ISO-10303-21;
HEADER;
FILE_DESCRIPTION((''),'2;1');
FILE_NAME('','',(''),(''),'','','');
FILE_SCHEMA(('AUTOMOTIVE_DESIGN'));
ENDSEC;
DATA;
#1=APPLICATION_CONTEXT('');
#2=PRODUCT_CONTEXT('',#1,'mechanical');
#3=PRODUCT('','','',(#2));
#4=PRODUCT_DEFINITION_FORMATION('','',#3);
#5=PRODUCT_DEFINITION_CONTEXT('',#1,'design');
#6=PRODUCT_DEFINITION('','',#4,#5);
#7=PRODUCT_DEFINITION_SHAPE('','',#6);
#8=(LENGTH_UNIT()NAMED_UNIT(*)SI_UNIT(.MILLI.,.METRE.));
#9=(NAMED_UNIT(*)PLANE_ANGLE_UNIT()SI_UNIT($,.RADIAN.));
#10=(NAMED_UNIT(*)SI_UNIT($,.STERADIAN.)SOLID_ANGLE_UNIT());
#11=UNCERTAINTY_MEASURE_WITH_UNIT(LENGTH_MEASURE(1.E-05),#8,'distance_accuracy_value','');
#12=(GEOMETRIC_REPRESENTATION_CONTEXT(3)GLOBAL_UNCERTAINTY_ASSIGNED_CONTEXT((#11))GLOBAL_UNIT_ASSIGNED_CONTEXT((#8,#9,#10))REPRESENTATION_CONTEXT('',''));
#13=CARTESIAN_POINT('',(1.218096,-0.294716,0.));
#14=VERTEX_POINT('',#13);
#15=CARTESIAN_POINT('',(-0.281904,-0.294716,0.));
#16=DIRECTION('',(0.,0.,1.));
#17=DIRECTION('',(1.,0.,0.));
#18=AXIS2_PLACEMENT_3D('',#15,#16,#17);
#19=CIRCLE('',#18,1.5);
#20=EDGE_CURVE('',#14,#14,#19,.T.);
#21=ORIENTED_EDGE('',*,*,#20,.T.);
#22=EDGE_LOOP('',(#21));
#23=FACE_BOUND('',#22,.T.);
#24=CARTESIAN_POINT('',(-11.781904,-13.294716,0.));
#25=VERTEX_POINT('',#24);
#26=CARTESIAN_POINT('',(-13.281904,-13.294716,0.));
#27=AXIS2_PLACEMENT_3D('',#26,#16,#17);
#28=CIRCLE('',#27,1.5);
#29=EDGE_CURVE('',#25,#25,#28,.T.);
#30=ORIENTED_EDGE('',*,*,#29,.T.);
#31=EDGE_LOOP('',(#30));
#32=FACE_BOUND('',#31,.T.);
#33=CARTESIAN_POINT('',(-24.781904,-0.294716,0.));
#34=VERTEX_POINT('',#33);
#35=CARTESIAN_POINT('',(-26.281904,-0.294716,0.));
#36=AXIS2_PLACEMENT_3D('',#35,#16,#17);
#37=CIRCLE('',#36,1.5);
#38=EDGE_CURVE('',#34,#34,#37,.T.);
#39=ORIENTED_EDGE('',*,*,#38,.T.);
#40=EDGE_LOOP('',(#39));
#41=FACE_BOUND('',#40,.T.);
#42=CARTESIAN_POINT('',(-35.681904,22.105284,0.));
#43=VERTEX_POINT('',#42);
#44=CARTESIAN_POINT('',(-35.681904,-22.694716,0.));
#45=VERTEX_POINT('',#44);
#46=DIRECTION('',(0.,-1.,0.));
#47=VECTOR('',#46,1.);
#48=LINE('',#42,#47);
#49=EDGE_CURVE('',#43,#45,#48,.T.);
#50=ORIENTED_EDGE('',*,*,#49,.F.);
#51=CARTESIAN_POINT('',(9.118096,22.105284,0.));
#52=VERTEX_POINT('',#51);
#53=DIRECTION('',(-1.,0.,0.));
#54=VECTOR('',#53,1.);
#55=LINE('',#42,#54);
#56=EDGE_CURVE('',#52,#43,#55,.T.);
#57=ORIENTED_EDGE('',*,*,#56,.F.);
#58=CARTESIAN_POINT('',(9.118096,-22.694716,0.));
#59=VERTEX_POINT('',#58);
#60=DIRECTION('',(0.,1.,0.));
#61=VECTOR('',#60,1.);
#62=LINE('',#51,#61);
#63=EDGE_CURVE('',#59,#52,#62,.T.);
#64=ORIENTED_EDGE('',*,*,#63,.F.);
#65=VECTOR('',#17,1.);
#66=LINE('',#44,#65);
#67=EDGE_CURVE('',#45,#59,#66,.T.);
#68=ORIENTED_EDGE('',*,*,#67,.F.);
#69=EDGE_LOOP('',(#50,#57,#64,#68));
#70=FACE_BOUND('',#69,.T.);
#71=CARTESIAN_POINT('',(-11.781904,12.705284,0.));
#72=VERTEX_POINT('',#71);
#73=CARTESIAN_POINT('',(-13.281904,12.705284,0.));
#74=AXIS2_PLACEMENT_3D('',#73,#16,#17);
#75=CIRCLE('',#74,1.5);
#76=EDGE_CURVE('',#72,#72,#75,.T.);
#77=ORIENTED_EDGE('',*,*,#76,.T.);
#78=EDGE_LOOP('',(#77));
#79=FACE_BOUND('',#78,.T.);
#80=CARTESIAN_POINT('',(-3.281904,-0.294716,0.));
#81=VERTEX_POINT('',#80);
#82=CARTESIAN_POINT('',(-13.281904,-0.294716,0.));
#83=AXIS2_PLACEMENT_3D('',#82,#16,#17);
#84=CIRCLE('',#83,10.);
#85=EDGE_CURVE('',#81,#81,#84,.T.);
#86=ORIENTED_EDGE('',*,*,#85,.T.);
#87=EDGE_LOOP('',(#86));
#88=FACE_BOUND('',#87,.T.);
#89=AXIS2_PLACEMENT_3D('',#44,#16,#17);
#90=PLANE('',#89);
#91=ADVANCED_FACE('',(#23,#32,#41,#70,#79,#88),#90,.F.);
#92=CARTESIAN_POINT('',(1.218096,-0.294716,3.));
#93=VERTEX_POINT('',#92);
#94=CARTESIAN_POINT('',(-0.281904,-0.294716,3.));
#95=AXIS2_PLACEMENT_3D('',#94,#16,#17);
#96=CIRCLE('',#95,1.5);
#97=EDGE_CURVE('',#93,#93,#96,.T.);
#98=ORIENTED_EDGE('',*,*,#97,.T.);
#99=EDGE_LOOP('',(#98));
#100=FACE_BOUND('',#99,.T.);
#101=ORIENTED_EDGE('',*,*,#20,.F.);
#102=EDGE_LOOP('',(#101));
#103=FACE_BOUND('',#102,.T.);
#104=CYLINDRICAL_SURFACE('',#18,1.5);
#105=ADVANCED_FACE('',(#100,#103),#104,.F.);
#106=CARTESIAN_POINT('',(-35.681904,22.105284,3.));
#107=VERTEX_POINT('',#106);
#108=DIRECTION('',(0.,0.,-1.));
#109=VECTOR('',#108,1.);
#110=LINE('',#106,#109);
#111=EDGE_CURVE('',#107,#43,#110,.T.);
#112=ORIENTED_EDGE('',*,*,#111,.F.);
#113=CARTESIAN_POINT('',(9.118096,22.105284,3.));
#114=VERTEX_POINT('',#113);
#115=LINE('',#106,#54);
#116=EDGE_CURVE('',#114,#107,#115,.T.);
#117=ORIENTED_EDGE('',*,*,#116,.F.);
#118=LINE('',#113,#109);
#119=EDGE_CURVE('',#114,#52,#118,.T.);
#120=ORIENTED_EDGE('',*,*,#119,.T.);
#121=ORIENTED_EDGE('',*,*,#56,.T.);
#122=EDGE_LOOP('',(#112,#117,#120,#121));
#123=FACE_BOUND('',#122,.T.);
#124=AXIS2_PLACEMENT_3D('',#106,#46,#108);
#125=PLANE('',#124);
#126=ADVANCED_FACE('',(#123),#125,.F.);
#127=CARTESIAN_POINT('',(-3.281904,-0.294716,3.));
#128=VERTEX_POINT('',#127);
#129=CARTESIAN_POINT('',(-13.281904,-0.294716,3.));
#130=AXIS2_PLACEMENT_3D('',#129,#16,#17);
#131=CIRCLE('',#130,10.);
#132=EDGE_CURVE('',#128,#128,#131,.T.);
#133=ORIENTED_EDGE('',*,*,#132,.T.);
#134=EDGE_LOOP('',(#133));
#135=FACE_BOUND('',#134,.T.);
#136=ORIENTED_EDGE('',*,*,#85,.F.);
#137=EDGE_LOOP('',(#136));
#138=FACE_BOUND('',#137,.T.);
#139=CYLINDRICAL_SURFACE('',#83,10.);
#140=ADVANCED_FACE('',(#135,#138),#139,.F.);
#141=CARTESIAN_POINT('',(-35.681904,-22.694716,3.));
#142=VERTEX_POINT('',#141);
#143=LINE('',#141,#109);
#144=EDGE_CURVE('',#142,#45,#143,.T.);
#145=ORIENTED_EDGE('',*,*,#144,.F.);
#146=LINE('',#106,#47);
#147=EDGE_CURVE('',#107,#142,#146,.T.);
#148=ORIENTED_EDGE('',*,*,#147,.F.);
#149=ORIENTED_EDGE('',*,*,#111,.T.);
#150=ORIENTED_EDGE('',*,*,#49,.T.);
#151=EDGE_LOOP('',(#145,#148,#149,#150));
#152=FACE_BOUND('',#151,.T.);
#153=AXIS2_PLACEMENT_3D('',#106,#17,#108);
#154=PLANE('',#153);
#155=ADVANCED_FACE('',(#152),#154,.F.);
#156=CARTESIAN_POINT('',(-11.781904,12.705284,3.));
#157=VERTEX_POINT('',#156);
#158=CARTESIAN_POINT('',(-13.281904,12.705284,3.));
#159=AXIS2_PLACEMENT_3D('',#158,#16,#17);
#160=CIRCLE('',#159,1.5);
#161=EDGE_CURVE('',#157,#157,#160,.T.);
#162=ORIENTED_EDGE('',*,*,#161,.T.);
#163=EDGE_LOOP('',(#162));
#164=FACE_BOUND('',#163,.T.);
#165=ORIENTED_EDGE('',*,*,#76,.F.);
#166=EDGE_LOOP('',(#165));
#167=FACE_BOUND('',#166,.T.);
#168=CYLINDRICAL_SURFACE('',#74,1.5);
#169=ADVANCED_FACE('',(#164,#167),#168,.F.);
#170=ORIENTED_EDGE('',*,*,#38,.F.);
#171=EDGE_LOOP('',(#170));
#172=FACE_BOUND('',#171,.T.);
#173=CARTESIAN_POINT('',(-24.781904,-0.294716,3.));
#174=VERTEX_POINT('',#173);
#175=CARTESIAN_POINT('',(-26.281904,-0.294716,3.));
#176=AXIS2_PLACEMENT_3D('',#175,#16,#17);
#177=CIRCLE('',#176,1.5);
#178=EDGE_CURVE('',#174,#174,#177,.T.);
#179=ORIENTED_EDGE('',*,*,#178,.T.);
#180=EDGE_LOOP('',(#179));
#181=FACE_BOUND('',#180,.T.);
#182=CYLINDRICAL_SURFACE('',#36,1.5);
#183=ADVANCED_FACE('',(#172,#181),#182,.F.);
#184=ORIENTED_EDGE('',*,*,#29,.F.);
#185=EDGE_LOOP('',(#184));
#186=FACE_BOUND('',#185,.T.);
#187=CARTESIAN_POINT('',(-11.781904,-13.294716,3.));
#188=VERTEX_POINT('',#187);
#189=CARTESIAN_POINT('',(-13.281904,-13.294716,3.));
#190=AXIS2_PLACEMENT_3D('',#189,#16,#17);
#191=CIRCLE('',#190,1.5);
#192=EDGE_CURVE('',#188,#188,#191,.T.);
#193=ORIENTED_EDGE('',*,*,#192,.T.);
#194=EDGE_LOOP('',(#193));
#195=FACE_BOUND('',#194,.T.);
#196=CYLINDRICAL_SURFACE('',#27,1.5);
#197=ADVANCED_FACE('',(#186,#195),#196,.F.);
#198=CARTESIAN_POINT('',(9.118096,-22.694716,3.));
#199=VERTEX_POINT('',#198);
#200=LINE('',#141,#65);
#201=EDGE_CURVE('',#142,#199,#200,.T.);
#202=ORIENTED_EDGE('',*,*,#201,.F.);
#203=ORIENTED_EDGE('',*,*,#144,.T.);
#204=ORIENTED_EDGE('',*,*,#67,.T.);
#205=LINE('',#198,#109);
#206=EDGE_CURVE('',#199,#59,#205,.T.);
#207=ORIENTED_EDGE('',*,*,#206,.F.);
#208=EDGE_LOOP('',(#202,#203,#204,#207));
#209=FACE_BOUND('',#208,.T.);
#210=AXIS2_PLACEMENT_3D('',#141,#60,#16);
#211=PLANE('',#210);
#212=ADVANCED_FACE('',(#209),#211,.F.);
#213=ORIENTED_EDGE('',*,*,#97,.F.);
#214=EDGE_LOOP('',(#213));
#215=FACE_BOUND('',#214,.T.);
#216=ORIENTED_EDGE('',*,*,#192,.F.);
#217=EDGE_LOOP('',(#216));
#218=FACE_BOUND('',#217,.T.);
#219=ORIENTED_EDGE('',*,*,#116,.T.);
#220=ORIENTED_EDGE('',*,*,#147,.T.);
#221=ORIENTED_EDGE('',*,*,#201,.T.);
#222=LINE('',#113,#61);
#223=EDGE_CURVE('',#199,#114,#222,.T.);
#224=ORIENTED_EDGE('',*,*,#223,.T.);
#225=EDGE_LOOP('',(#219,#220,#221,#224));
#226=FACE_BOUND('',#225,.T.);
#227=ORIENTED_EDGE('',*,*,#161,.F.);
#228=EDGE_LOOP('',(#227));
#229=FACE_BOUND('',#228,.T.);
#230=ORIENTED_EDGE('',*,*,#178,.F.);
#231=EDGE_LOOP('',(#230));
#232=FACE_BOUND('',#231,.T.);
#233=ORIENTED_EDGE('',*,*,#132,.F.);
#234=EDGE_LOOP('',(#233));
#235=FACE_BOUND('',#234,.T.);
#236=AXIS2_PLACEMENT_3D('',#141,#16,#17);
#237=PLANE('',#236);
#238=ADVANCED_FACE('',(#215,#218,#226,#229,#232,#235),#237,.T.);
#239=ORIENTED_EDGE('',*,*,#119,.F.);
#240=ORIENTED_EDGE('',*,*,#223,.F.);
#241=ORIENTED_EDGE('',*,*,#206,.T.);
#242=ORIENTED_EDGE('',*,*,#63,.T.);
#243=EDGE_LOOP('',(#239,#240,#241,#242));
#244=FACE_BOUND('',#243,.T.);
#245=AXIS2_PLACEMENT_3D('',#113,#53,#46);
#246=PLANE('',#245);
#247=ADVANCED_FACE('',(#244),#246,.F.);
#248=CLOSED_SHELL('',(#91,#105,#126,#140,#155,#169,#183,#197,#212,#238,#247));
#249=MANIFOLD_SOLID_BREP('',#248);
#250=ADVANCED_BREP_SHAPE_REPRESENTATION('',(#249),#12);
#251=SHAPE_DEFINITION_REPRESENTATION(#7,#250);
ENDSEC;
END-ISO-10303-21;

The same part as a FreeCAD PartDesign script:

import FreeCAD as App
import Part
import Sketcher


def add_polygon(sketch, points):
    """Adds a closed chain of lines whose ends are joined by coincident constraints."""
    first, n = sketch.GeometryCount, len(points)
    for a, b in zip(points, points[1:] + points[:1]):
        sketch.addGeometry(Part.LineSegment(App.Vector(*a, 0), App.Vector(*b, 0)), False)
    for i in range(n):
        sketch.addConstraint(Sketcher.Constraint("Coincident", first + i, 2, first + (i + 1) % n, 1))

doc = App.newDocument("Part")
body = doc.addObject("PartDesign::Body", "Body")

# Sketch on XY plane
sketch1 = body.newObject("Sketcher::SketchObject", "Sketch")
sketch1.AttachmentSupport = (doc.getObject("XY_Plane"), [""])
sketch1.MapMode = "FlatFace"
add_polygon(sketch1, [(-36, 22), (-36, -23), (9, -23), (9, 22)])  # lines 0-3
sketch1.addConstraint([
    Sketcher.Constraint("Vertical", 0),
    Sketcher.Constraint("Horizontal", 1),
    Sketcher.Constraint("Vertical", 2),
    Sketcher.Constraint("Horizontal", 3),
    Sketcher.Constraint("Equal", 3, 0),
    Sketcher.Constraint("DistanceX", 1, 1, 1, 2, 44.8),
    Sketcher.Constraint("DistanceX", 0, 2, -1, 1, 35.681904),
    Sketcher.Constraint("DistanceY", 0, 2, -1, 1, 22.694716),
])
pad1 = body.newObject("PartDesign::Pad", "Pad")
pad1.Profile = sketch1
pad1.Length = 3

# Sketch on XY plane
sketch2 = body.newObject("Sketcher::SketchObject", "Sketch001")
sketch2.AttachmentSupport = (doc.getObject("XY_Plane"), [""])
sketch2.MapMode = "FlatFace"
sketch2.AttachmentOffset = App.Placement(App.Vector(0, 0, 3), App.Rotation())
sketch2.addGeometry([
    Part.Circle(App.Vector(-13.3, 12.7, 0), App.Vector(0, 0, 1), 1.5),  # 0
    Part.Circle(App.Vector(-0.3, -0.3, 0), App.Vector(0, 0, 1), 1.5),  # 1
    Part.Circle(App.Vector(-13.3, -13.3, 0), App.Vector(0, 0, 1), 1.5),  # 2
    Part.Circle(App.Vector(-26.3, -0.3, 0), App.Vector(0, 0, 1), 1.5),  # 3
    Part.Circle(App.Vector(-13.3, -0.3, 0), App.Vector(0, 0, 1), 10),  # 4
], False)
sketch2.addConstraint([
    Sketcher.Constraint("Equal", 0, 1),
    Sketcher.Constraint("Equal", 1, 2),
    Sketcher.Constraint("Equal", 2, 3),
    Sketcher.Constraint("Horizontal", 1, 3, 3, 3),
    Sketcher.Constraint("Horizontal", 3, 3, 4, 3),
    Sketcher.Constraint("Vertical", 0, 3, 2, 3),
    Sketcher.Constraint("Vertical", 2, 3, 4, 3),
    Sketcher.Constraint("Diameter", 0, 3.0),
    Sketcher.Constraint("Diameter", 4, 20.0),
    Sketcher.Constraint("DistanceX", 0, 3, 1, 3, 13.0),
    Sketcher.Constraint("DistanceY", 1, 3, 0, 3, 13.0),
    Sketcher.Constraint("DistanceY", 2, 3, 1, 3, 13.0),
    Sketcher.Constraint("DistanceX", 3, 3, 0, 3, 13.0),
    Sketcher.Constraint("DistanceX", 0, 3, -1, 1, 13.281904),
    Sketcher.Constraint("DistanceY", -1, 1, 0, 3, 12.705284),
])
pocket1 = body.newObject("PartDesign::Pocket", "Pocket")
pocket1.Profile = sketch2
pocket1.Length = 3

doc.recompute()
